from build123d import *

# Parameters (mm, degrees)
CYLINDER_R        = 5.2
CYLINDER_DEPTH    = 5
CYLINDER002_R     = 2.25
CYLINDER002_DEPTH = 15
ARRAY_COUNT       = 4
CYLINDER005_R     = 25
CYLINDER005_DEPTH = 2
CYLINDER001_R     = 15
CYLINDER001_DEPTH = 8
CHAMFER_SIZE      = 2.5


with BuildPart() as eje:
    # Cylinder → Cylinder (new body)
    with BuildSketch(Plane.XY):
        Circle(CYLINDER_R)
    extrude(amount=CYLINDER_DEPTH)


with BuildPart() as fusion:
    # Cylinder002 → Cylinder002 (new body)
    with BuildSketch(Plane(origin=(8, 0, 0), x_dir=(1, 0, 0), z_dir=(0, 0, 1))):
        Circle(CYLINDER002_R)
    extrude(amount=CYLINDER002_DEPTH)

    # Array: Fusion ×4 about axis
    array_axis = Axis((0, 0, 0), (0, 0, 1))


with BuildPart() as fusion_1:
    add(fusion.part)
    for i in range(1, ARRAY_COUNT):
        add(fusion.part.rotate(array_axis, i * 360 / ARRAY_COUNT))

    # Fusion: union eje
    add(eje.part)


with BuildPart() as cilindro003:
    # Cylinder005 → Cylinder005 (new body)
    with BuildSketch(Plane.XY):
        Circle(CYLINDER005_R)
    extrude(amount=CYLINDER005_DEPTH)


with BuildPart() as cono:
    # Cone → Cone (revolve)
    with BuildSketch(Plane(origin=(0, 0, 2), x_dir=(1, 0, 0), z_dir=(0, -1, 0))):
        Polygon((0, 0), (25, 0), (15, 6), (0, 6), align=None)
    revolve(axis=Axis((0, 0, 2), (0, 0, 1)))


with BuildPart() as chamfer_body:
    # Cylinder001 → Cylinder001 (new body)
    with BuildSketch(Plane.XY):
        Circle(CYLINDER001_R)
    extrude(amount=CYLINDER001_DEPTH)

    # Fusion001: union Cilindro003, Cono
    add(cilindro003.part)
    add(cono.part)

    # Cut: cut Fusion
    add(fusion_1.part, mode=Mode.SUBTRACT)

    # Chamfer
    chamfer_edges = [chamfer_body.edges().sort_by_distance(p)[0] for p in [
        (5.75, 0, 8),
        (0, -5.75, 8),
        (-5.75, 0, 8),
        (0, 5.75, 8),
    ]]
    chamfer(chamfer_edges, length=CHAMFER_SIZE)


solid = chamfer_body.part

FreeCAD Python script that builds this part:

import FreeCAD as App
import Part
import Sketcher


def edges_at(feature, points):
    """Names of the edges that pass closest to the given points."""
    edges = feature.Shape.Edges
    near = lambda p: min(range(len(edges)), key=lambda i: edges[i].distToShape(Part.Vertex(*p))[0])
    return sorted({f"Edge{near(p) + 1}" for p in points})


def add_polygon(sketch, points):
    """Adds a closed chain of lines whose ends are joined by coincident constraints."""
    first, n = sketch.GeometryCount, len(points)
    for a, b in zip(points, points[1:] + points[:1]):
        sketch.addGeometry(Part.LineSegment(App.Vector(*a, 0), App.Vector(*b, 0)), False)
    for i in range(n):
        sketch.addConstraint(Sketcher.Constraint("Coincident", first + i, 2, first + (i + 1) % n, 1))

doc = App.newDocument("Part")
body = doc.addObject("PartDesign::Body", "Body")

# Sketch on XY plane
sketch1 = body.newObject("Sketcher::SketchObject", "Sketch")
sketch1.AttachmentSupport = (doc.getObject("XY_Plane"), [""])
sketch1.MapMode = "FlatFace"
sketch1.addGeometry(Part.Circle(App.Vector(0, 0, 0), App.Vector(0, 0, 1), 5), False)
sketch1.addConstraint([
    Sketcher.Constraint("Coincident", 0, 3, -1, 1),
    Sketcher.Constraint("Diameter", 0, 10.4),
])
pad1 = body.newObject("PartDesign::Pad", "Pad")
pad1.Profile = sketch1
pad1.Length = 5
body2 = doc.addObject("PartDesign::Body", "Body001")

# Sketch on XY plane
sketch2 = body2.newObject("Sketcher::SketchObject", "Sketch001")
sketch2.AttachmentSupport = (doc.getObject("XY_Plane001"), [""])
sketch2.MapMode = "FlatFace"
sketch2.addGeometry(Part.Circle(App.Vector(8, 0, 0), App.Vector(0, 0, 1), 2.2), False)
sketch2.addConstraint([
    Sketcher.Constraint("PointOnObject", 0, 3, -1),
    Sketcher.Constraint("Diameter", 0, 4.5),
    Sketcher.Constraint("DistanceX", -1, 1, 0, 3, 8.0),
])
pad2 = body2.newObject("PartDesign::Pad", "Pad001")
pad2.Profile = sketch2
pad2.Length = 15
body3 = doc.addObject("PartDesign::Body", "Body002")
body3.AllowCompound = True
doc.recompute()

body3.BaseFeature = body2
doc.recompute()

body4 = doc.addObject("PartDesign::Body", "Body003")
body4.BaseFeature = body2
body4.Placement = App.Placement(App.Vector(0, 0, 0), App.Rotation(App.Vector(0, 0, 1), 90))
boolean = body3.newObject("PartDesign::Boolean", "Boolean")
boolean.Type = "Fuse"
boolean.addObjects([body4])
doc.recompute()

body5 = doc.addObject("PartDesign::Body", "Body004")
body5.BaseFeature = body2
body5.Placement = App.Placement(App.Vector(0, 0, 0), App.Rotation(App.Vector(0, 0, 1), 180))
boolean2 = body3.newObject("PartDesign::Boolean", "Boolean001")
boolean2.Type = "Fuse"
boolean2.addObjects([body5])
doc.recompute()

body2.Placement = App.Placement(App.Vector(0, 0, 0), App.Rotation(App.Vector(0, 0, 1), 270))
boolean3 = body3.newObject("PartDesign::Boolean", "Boolean002")
boolean3.Type = "Fuse"
boolean3.addObjects([body2])
doc.recompute()

boolean4 = body3.newObject("PartDesign::Boolean", "Boolean003")
boolean4.Type = "Fuse"
boolean4.addObjects([body])
body6 = doc.addObject("PartDesign::Body", "Body005")

# Sketch on XY plane
sketch3 = body6.newObject("Sketcher::SketchObject", "Sketch002")
sketch3.AttachmentSupport = (doc.getObject("XY_Plane005"), [""])
sketch3.MapMode = "FlatFace"
sketch3.addGeometry(Part.Circle(App.Vector(0, 0, 0), App.Vector(0, 0, 1), 25), False)
sketch3.addConstraint([
    Sketcher.Constraint("Coincident", 0, 3, -1, 1),
    Sketcher.Constraint("Diameter", 0, 50.0),
])
pad3 = body6.newObject("PartDesign::Pad", "Pad002")
pad3.Profile = sketch3
pad3.Length = 2
body7 = doc.addObject("PartDesign::Body", "Body006")

# Sketch on XZ plane
sketch4 = body7.newObject("Sketcher::SketchObject", "Sketch003")
sketch4.AttachmentSupport = (doc.getObject("XZ_Plane006"), [""])
sketch4.MapMode = "FlatFace"
add_polygon(sketch4, [(0, 2), (25, 2), (15, 8), (0, 8)])  # lines 0-3
sketch4.addConstraint([
    Sketcher.Constraint("Horizontal", 0),
    Sketcher.Constraint("Horizontal", 2),
    Sketcher.Constraint("Vertical", 3),
    Sketcher.Constraint("PointOnObject", 2, 2, -2),
    Sketcher.Constraint("DistanceX", 0, 1, 0, 2, 25.0),
    Sketcher.Constraint("DistanceX", 2, 2, 2, 1, 15.0),
    Sketcher.Constraint("DistanceY", 3, 2, 3, 1, 6.0),
    Sketcher.Constraint("DistanceY", -1, 1, 0, 2, 2.0),
])
revolution = body7.newObject("PartDesign::Revolution", "Revolution")
revolution.Profile = sketch4
revolution.ReferenceAxis = (sketch4, ["V_Axis"])
revolution.Angle = 360
body8 = doc.addObject("PartDesign::Body", "Body007")

# Sketch on XY plane
sketch5 = body8.newObject("Sketcher::SketchObject", "Sketch004")
sketch5.AttachmentSupport = (doc.getObject("XY_Plane007"), [""])
sketch5.MapMode = "FlatFace"
sketch5.addGeometry(Part.Circle(App.Vector(0, 0, 0), App.Vector(0, 0, 1), 15), False)
sketch5.addConstraint([
    Sketcher.Constraint("Coincident", 0, 3, -1, 1),
    Sketcher.Constraint("Diameter", 0, 30.0),
])
pad4 = body8.newObject("PartDesign::Pad", "Pad003")
pad4.Profile = sketch5
pad4.Length = 8
doc.recompute()

boolean5 = body8.newObject("PartDesign::Boolean", "Boolean004")
boolean5.Type = "Fuse"
boolean5.addObjects([body6])
doc.recompute()

boolean6 = body8.newObject("PartDesign::Boolean", "Boolean005")
boolean6.Type = "Fuse"
boolean6.addObjects([body7])
doc.recompute()

boolean7 = body8.newObject("PartDesign::Boolean", "Boolean006")
boolean7.Type = "Cut"
boolean7.addObjects([body3])
doc.recompute()

chamfer = body8.newObject("PartDesign::Chamfer", "Chamfer")
chamfer.Base = (boolean7, edges_at(boolean7, [
    (5.75, 0, 8),
    (0, -5.75, 8),
    (-5.75, 0, 8),
    (0, 5.75, 8),
]))
chamfer.Size = 2.5

doc.recompute()
